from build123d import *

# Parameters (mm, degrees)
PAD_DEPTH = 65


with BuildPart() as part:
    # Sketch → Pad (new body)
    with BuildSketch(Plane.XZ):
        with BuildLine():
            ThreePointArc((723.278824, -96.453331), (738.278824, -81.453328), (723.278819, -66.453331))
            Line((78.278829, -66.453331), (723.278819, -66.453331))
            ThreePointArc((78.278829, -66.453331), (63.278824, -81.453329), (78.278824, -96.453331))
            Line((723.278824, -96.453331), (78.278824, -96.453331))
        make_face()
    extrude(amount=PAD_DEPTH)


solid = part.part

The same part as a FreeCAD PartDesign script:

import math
import FreeCAD as App
import Part
import Sketcher
Q = App.Units.Quantity

doc = App.newDocument("Part")
body = doc.addObject("PartDesign::Body", "Body")

sketch1 = body.newObject("Sketcher::SketchObject", "Sketch")
sketch1.AttachmentSupport = (doc.getObject("XZ_Plane"), [""])
sketch1.MapMode = "FlatFace"
sketch1.addGeometry(Part.ArcOfCircle(Part.Circle(App.Vector(723, -81, 0), App.Vector(0, 0, 1), 15), math.radians(-90), math.radians(90)), False)
sketch1.addGeometry(Part.LineSegment(App.Vector(723, -66, 0), App.Vector(78, -66, 0)), False)
sketch1.addGeometry(Part.ArcOfCircle(Part.Circle(App.Vector(78, -81, 0), App.Vector(0, 0, 1), 15), math.radians(90), math.radians(270)), False)
sketch1.addGeometry(Part.LineSegment(App.Vector(78, -96, 0), App.Vector(723, -96, 0)), False)
sketch1.addConstraint(Sketcher.Constraint("Tangent", 0, 2, 1, 1))
sketch1.addConstraint(Sketcher.Constraint("Tangent", 1, 2, 2, 1))
sketch1.addConstraint(Sketcher.Constraint("Tangent", 2, 2, 3, 1))
sketch1.addConstraint(Sketcher.Constraint("Tangent", 3, 2, 0, 1))
sketch1.addConstraint(Sketcher.Constraint("Horizontal", 1))
sketch1.addConstraint(Sketcher.Constraint("Horizontal", 3))
sketch1.addConstraint(Sketcher.Constraint("Radius", 0, Q("15 mm")))
sketch1.addConstraint(Sketcher.Constraint("DistanceX", 3, 1, 3, 2, Q("645 mm")))
sketch1.addConstraint(Sketcher.Constraint("DistanceY", 0, 3, -1, 1, Q("81.453331 mm")))
sketch1.addConstraint(Sketcher.Constraint("DistanceX", -1, 1, 0, 2, Q("723.278819 mm")))
pad1 = body.newObject("PartDesign::Pad", "Pad")
pad1.Profile = sketch1
pad1.Length = 65

doc.recompute()
